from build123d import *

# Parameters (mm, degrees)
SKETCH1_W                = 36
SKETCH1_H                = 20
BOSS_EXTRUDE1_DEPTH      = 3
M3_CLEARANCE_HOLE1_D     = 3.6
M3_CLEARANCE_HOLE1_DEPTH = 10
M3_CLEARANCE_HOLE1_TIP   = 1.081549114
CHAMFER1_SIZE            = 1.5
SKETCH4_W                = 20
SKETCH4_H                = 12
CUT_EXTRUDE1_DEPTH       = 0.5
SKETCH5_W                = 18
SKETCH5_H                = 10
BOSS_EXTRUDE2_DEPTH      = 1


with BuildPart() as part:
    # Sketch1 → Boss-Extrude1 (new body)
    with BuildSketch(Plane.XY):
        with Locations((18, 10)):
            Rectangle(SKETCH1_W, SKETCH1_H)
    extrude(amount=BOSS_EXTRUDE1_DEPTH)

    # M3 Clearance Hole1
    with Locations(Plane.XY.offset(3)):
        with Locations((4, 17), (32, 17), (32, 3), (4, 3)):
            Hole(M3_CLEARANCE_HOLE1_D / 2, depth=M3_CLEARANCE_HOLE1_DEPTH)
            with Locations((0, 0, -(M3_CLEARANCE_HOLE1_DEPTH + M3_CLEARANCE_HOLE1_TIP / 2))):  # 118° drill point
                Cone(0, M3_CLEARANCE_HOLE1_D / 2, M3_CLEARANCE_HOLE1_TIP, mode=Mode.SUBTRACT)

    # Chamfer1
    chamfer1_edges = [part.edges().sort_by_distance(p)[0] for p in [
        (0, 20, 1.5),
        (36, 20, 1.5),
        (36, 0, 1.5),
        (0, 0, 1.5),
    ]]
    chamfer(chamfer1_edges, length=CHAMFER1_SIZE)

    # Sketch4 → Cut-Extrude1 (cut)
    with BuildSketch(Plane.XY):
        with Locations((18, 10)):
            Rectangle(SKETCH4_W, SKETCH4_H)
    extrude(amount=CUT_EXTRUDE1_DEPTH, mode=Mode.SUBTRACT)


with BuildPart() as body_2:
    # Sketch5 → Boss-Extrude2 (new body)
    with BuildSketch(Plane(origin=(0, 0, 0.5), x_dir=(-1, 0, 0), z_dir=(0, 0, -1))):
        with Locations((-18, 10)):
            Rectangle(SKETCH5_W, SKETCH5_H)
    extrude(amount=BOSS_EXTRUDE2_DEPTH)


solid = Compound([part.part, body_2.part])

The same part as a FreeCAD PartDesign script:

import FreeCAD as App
import Part
import Sketcher
from FreeCAD import Vector


def edges_at(feature, points):
    """Names of the edges that pass closest to the given points."""
    edges = feature.Shape.Edges
    near = lambda p: min(range(len(edges)), key=lambda i: edges[i].distToShape(Part.Vertex(*p))[0])
    return sorted({f"Edge{near(p) + 1}" for p in points})

doc = App.newDocument("Part")
body = doc.addObject("PartDesign::Body", "Body")

# Sketch on XY plane
sketch1 = body.newObject("Sketcher::SketchObject", "Sketch")
sketch1.AttachmentSupport = (doc.getObject("XY_Plane"), [""])
sketch1.MapMode = "FlatFace"
sketch1.addGeometry([
    Part.LineSegment(Vector(0, 20, 0), Vector(0, 0, 0)),
    Part.LineSegment(Vector(0, 0, 0), Vector(36, 0, 0)),
    Part.LineSegment(Vector(36, 0, 0), Vector(36, 20, 0)),
    Part.LineSegment(Vector(36, 20, 0), Vector(0, 20, 0)),
], False)
sketch1.addConstraint([
    Sketcher.Constraint("Coincident", 0, 2, 1, 1),
    Sketcher.Constraint("Coincident", 1, 2, 2, 1),
    Sketcher.Constraint("Coincident", 2, 2, 3, 1),
    Sketcher.Constraint("Coincident", 3, 2, 0, 1),
    Sketcher.Constraint("Vertical", 0),
    Sketcher.Constraint("Horizontal", 1),
    Sketcher.Constraint("Vertical", 2),
    Sketcher.Constraint("Horizontal", 3),
    Sketcher.Constraint("Coincident", 0, 2, -1, 1),
    Sketcher.Constraint("DistanceX", 1, 1, 1, 2, 36.0),
    Sketcher.Constraint("DistanceY", 0, 2, 0, 1, 20.0),
])
pad1 = body.newObject("PartDesign::Pad", "Pad")
pad1.Profile = sketch1
pad1.Length = 3

# Sketch on XY plane
sketch2 = body.newObject("Sketcher::SketchObject", "Sketch001")
sketch2.AttachmentSupport = (doc.getObject("XY_Plane"), [""])
sketch2.MapMode = "FlatFace"
sketch2.AttachmentOffset = App.Placement(Vector(0, 0, 3), App.Rotation())
sketch2.addGeometry([
    Part.Circle(Vector(4, 17, 0), Vector(0, 0, 1), 1.8),
    Part.Circle(Vector(32, 17, 0), Vector(0, 0, 1), 1.8),
    Part.Circle(Vector(32, 3, 0), Vector(0, 0, 1), 1.8),
    Part.Circle(Vector(4, 3, 0), Vector(0, 0, 1), 1.8),
], False)
sketch2.addConstraint([
    Sketcher.Constraint("Equal", 0, 1),
    Sketcher.Constraint("Equal", 1, 2),
    Sketcher.Constraint("Equal", 2, 3),
    Sketcher.Constraint("Horizontal", 0, 3, 1, 3),
    Sketcher.Constraint("Horizontal", 2, 3, 3, 3),
    Sketcher.Constraint("Vertical", 1, 3, 2, 3),
    Sketcher.Constraint("Vertical", 0, 3, 3, 3),
    Sketcher.Constraint("Diameter", 0, 3.6),
    Sketcher.Constraint("DistanceX", -1, 1, 0, 3, 4.0),
    Sketcher.Constraint("DistanceY", -1, 1, 0, 3, 17.0),
    Sketcher.Constraint("DistanceX", -1, 1, 1, 3, 32.0),
    Sketcher.Constraint("DistanceY", -1, 1, 2, 3, 3.0),
])
doc.recompute()
hole = body.newObject("PartDesign::Hole", "Hole")
hole.Profile = sketch2
hole.ThreadType = "None"
hole.Diameter = 3.6
hole.DepthType = "Dimension"
hole.Depth = 10
hole.DrillPoint = "Angled"
hole.DrillPointAngle = 118
doc.recompute()

chamfer = body.newObject("PartDesign::Chamfer", "Chamfer")
chamfer.Base = (hole, edges_at(hole, [
    (0, 20, 1.5),
    (36, 20, 1.5),
    (36, 0, 1.5),
    (0, 0, 1.5),
]))
chamfer.Size = 1.5

# Sketch on XY plane
sketch3 = body.newObject("Sketcher::SketchObject", "Sketch002")
sketch3.AttachmentSupport = (doc.getObject("XY_Plane"), [""])
sketch3.MapMode = "FlatFace"
sketch3.addGeometry([
    Part.LineSegment(Vector(8, 16, 0), Vector(8, 4, 0)),
    Part.LineSegment(Vector(8, 4, 0), Vector(28, 4, 0)),
    Part.LineSegment(Vector(28, 4, 0), Vector(28, 16, 0)),
    Part.LineSegment(Vector(28, 16, 0), Vector(8, 16, 0)),
], False)
sketch3.addConstraint([
    Sketcher.Constraint("Coincident", 0, 2, 1, 1),
    Sketcher.Constraint("Coincident", 1, 2, 2, 1),
    Sketcher.Constraint("Coincident", 2, 2, 3, 1),
    Sketcher.Constraint("Coincident", 3, 2, 0, 1),
    Sketcher.Constraint("Vertical", 0),
    Sketcher.Constraint("Horizontal", 1),
    Sketcher.Constraint("Vertical", 2),
    Sketcher.Constraint("Horizontal", 3),
    Sketcher.Constraint("DistanceX", 1, 1, 1, 2, 20.0),
    Sketcher.Constraint("DistanceY", 0, 2, 0, 1, 12.0),
    Sketcher.Constraint("DistanceX", -1, 1, 0, 2, 8.0),
    Sketcher.Constraint("DistanceY", -1, 1, 0, 2, 4.0),
])
pocket1 = body.newObject("PartDesign::Pocket", "Pocket")
pocket1.Profile = sketch3
pocket1.Length = 0.5
pocket1.Reversed = True
body2 = doc.addObject("PartDesign::Body", "Body001")

# Sketch on XY plane
sketch4 = body2.newObject("Sketcher::SketchObject", "Sketch003")
sketch4.AttachmentSupport = (doc.getObject("XY_Plane001"), [""])
sketch4.MapMode = "FlatFace"
sketch4.AttachmentOffset = App.Placement(Vector(0, 0, 0.5), App.Rotation())
sketch4.addGeometry([
    Part.LineSegment(Vector(27, 15, 0), Vector(27, 5, 0)),
    Part.LineSegment(Vector(27, 5, 0), Vector(9, 5, 0)),
    Part.LineSegment(Vector(9, 5, 0), Vector(9, 15, 0)),
    Part.LineSegment(Vector(9, 15, 0), Vector(27, 15, 0)),
], False)
sketch4.addConstraint([
    Sketcher.Constraint("Coincident", 0, 2, 1, 1),
    Sketcher.Constraint("Coincident", 1, 2, 2, 1),
    Sketcher.Constraint("Coincident", 2, 2, 3, 1),
    Sketcher.Constraint("Coincident", 3, 2, 0, 1),
    Sketcher.Constraint("Vertical", 0),
    Sketcher.Constraint("Horizontal", 1),
    Sketcher.Constraint("Vertical", 2),
    Sketcher.Constraint("Horizontal", 3),
    Sketcher.Constraint("DistanceX", 1, 2, 1, 1, 18.0),
    Sketcher.Constraint("DistanceY", 0, 2, 0, 1, 10.0),
    Sketcher.Constraint("DistanceX", -1, 1, 0, 2, 27.0),
    Sketcher.Constraint("DistanceY", -1, 1, 0, 2, 5.0),
])
pad2 = body2.newObject("PartDesign::Pad", "Pad001")
pad2.Profile = sketch4
pad2.Length = 1
pad2.Reversed = True

doc.recompute()
